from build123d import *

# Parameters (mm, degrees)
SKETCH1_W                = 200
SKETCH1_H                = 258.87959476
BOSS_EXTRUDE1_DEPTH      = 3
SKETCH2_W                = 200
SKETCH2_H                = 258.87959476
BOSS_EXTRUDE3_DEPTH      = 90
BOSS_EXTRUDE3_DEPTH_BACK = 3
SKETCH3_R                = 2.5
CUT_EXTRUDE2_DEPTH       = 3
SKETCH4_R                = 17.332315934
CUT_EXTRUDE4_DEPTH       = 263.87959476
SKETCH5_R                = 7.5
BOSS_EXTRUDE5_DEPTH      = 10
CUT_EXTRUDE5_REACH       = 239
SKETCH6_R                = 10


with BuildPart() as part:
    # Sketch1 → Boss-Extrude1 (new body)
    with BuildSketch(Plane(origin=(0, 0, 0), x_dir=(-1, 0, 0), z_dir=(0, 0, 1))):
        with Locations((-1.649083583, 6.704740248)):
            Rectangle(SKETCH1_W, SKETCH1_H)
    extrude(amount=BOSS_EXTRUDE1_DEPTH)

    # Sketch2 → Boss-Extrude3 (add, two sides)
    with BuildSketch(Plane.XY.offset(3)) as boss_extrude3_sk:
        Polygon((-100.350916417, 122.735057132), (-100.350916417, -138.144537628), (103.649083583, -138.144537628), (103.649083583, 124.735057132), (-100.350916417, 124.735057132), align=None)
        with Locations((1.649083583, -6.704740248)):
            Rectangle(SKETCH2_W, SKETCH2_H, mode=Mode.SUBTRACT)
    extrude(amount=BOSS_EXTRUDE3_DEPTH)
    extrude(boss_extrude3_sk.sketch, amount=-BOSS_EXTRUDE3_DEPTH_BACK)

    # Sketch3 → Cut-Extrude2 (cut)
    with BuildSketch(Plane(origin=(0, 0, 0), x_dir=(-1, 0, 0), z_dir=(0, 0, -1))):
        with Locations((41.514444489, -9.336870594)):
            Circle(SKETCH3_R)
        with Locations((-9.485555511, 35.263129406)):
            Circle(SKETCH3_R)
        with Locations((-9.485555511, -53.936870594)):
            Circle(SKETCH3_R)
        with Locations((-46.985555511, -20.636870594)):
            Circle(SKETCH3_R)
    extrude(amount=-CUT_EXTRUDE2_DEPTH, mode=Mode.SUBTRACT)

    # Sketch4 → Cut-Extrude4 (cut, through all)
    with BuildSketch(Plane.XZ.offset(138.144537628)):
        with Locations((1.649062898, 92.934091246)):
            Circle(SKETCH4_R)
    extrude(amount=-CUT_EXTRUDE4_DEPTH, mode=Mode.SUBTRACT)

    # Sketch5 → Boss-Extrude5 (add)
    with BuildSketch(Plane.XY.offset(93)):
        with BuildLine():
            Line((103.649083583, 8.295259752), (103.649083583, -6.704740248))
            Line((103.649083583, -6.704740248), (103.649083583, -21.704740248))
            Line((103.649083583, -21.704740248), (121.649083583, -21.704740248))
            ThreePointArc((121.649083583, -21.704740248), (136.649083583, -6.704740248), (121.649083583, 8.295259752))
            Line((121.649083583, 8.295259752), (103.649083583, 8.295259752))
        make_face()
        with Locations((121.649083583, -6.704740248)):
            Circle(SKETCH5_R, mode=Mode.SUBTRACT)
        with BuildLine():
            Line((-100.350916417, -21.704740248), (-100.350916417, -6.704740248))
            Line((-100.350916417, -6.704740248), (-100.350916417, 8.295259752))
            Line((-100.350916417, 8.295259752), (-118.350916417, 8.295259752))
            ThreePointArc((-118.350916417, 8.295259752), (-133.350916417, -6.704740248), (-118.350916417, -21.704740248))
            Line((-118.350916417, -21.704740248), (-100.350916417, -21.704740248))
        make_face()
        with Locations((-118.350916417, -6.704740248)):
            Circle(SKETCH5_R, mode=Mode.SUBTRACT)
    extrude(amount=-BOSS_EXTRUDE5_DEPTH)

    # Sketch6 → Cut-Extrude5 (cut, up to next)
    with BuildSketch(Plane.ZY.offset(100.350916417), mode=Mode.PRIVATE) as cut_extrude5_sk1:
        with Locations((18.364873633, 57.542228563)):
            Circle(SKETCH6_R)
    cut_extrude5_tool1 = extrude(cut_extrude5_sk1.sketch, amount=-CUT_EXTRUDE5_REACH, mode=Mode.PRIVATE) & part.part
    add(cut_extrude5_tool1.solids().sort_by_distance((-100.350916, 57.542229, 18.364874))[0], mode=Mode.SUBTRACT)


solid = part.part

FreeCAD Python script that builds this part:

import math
import FreeCAD as App
import Part
import Sketcher

V = App.Vector

doc = App.newDocument("Part")
params = doc.addObject("Spreadsheet::Sheet", "Params")
for row, (alias, value) in enumerate([
    ("sketch1_width", "200 mm"),
    ("pad1_length", "3 mm"),
    ("sketch2_width", "204 mm"),
    ("sketch2_width2", "200 mm"),
    ("pad2_length", "90 mm"),
    ("pad2_length2", "3 mm"),
    ("sketch3_diameter", "5 mm"),
    ("pocket1_length", "3 mm"),
    ("sketch5_diameter", "15 mm"),
    ("sketch5_radius", "15 mm"),
    ("sketch5_width", "18 mm"),
    ("pad3_length", "10 mm"),
    ("sketch6_diameter", "20 mm"),
], start=1):
    params.set(f"A{row}", alias)
    params.set(f"B{row}", "=" + value)
    params.setAlias(f"B{row}", alias)

body = doc.addObject("PartDesign::Body", "Body")

sketch1 = doc.addObject("Sketcher::SketchObject", "Sketch")
body.addObject(sketch1)
sketch1.AttachmentSupport = (doc.XY_Plane, [""])
sketch1.MapMode = "FlatFace"
sketch1.addGeometry(Part.LineSegment(V(102, -136, 0), V(102, 123, 0)), False)
sketch1.addGeometry(Part.LineSegment(V(102, 123, 0), V(-98, 123, 0)), False)
sketch1.addGeometry(Part.LineSegment(V(-98, 123, 0), V(-98, -136, 0)), False)
sketch1.addGeometry(Part.LineSegment(V(-98, -136, 0), V(102, -136, 0)), False)
sketch1.addConstraint(Sketcher.Constraint("Coincident", 0, 2, 1, 1))
sketch1.addConstraint(Sketcher.Constraint("Coincident", 1, 2, 2, 1))
sketch1.addConstraint(Sketcher.Constraint("Coincident", 2, 2, 3, 1))
sketch1.addConstraint(Sketcher.Constraint("Coincident", 3, 2, 0, 1))
sketch1.addConstraint(Sketcher.Constraint("Vertical", 0))
sketch1.addConstraint(Sketcher.Constraint("Horizontal", 1))
sketch1.addConstraint(Sketcher.Constraint("Vertical", 2))
sketch1.addConstraint(Sketcher.Constraint("Horizontal", 3))
sketch1.addConstraint(Sketcher.Constraint("DistanceX", 1, 2, 1, 1, 200.0))
sketch1.addConstraint(Sketcher.Constraint("DistanceY", 0, 1, 0, 2, 258.879595))
sketch1.addConstraint(Sketcher.Constraint("DistanceX", -1, 1, 0, 2, 101.649084))
sketch1.addConstraint(Sketcher.Constraint("DistanceY", -1, 1, 0, 2, 122.735057))
sketch1.setExpression("Constraints[8]", "Params.sketch1_width")
pad1 = doc.addObject("PartDesign::Pad", "Pad")
body.addObject(pad1)
pad1.Profile = sketch1
pad1.setExpression("Length", "Params.pad1_length")

sketch2 = doc.addObject("Sketcher::SketchObject", "Sketch001")
body.addObject(sketch2)
sketch2.AttachmentSupport = (doc.XY_Plane, [""])
sketch2.MapMode = "FlatFace"
sketch2.AttachmentOffset = App.Placement(V(0, 0, 3), App.Rotation())
sketch2.addGeometry(Part.LineSegment(V(-100, -138, 0), V(104, -138, 0)), False)
sketch2.addGeometry(Part.LineSegment(V(104, -138, 0), V(104, 125, 0)), False)
sketch2.addGeometry(Part.LineSegment(V(104, 125, 0), V(-100, 125, 0)), False)
sketch2.addGeometry(Part.LineSegment(V(-100, 125, 0), V(-100, -138, 0)), False)
sketch2.addGeometry(Part.LineSegment(V(102, -136, 0), V(-98, -136, 0)), False)
sketch2.addGeometry(Part.LineSegment(V(-98, -136, 0), V(-98, 123, 0)), False)
sketch2.addGeometry(Part.LineSegment(V(-98, 123, 0), V(102, 123, 0)), False)
sketch2.addGeometry(Part.LineSegment(V(102, 123, 0), V(102, -136, 0)), False)
sketch2.addConstraint(Sketcher.Constraint("Coincident", 0, 2, 1, 1))
sketch2.addConstraint(Sketcher.Constraint("Coincident", 1, 2, 2, 1))
sketch2.addConstraint(Sketcher.Constraint("Coincident", 2, 2, 3, 1))
sketch2.addConstraint(Sketcher.Constraint("Coincident", 3, 2, 0, 1))
sketch2.addConstraint(Sketcher.Constraint("Coincident", 4, 2, 5, 1))
sketch2.addConstraint(Sketcher.Constraint("Coincident", 5, 2, 6, 1))
sketch2.addConstraint(Sketcher.Constraint("Coincident", 6, 2, 7, 1))
sketch2.addConstraint(Sketcher.Constraint("Coincident", 7, 2, 4, 1))
sketch2.addConstraint(Sketcher.Constraint("Horizontal", 0))
sketch2.addConstraint(Sketcher.Constraint("Vertical", 1))
sketch2.addConstraint(Sketcher.Constraint("Horizontal", 2))
sketch2.addConstraint(Sketcher.Constraint("Vertical", 3))
sketch2.addConstraint(Sketcher.Constraint("Horizontal", 4))
sketch2.addConstraint(Sketcher.Constraint("Vertical", 5))
sketch2.addConstraint(Sketcher.Constraint("Horizontal", 6))
sketch2.addConstraint(Sketcher.Constraint("Vertical", 7))
sketch2.addConstraint(Sketcher.Constraint("DistanceX", 0, 1, 0, 2, 204.0))
sketch2.addConstraint(Sketcher.Constraint("DistanceX", 4, 2, 4, 1, 200.0))
sketch2.addConstraint(Sketcher.Constraint("DistanceX", 3, 2, 4, 2, 2.0))
sketch2.addConstraint(Sketcher.Constraint("DistanceY", 3, 2, 4, 2, 2.0))
sketch2.addConstraint(Sketcher.Constraint("DistanceY", 5, 2, 2, 2, 2.0))
sketch2.addConstraint(Sketcher.Constraint("DistanceY", 1, 1, 1, 2, 262.879595))
sketch2.addConstraint(Sketcher.Constraint("DistanceX", -1, 1, 0, 2, 103.649084))
sketch2.addConstraint(Sketcher.Constraint("DistanceY", 0, 2, -1, 1, 138.144538))
sketch2.setExpression("Constraints[16]", "Params.sketch2_width")
sketch2.setExpression("Constraints[17]", "Params.sketch2_width2")
pad2 = doc.addObject("PartDesign::Pad", "Pad001")
body.addObject(pad2)
pad2.Profile = sketch2
pad2.Type = "TwoLengths"
pad2.setExpression("Length", "Params.pad2_length")
pad2.setExpression("Length2", "Params.pad2_length2")

sketch3 = doc.addObject("Sketcher::SketchObject", "Sketch002")
body.addObject(sketch3)
sketch3.AttachmentSupport = (doc.XY_Plane, [""])
sketch3.MapMode = "FlatFace"
sketch3.addGeometry(Part.Circle(V(-41.5, -9.3, 0), V(0, 0, 1), 2.5), False)
sketch3.addGeometry(Part.Circle(V(9.5, 35.3, 0), V(0, 0, 1), 2.5), False)
sketch3.addGeometry(Part.Circle(V(9.5, -53.9, 0), V(0, 0, 1), 2.5), False)
sketch3.addGeometry(Part.Circle(V(47, -20.6, 0), V(0, 0, 1), 2.5), False)
sketch3.addConstraint(Sketcher.Constraint("Equal", 0, 1))
sketch3.addConstraint(Sketcher.Constraint("Equal", 1, 2))
sketch3.addConstraint(Sketcher.Constraint("Equal", 2, 3))
sketch3.addConstraint(Sketcher.Constraint("Vertical", 1, 3, 2, 3))
sketch3.addConstraint(Sketcher.Constraint("Diameter", 0, 5.0))
sketch3.addConstraint(Sketcher.Constraint("DistanceX", 0, 3, 1, 3, 51.0))
sketch3.addConstraint(Sketcher.Constraint("DistanceY", 0, 3, 1, 3, 44.6))
sketch3.addConstraint(Sketcher.Constraint("DistanceY", 2, 3, 0, 3, 44.6))
sketch3.addConstraint(Sketcher.Constraint("DistanceX", 2, 3, 3, 3, 37.5))
sketch3.addConstraint(Sketcher.Constraint("DistanceY", 2, 3, 3, 3, 33.3))
sketch3.addConstraint(Sketcher.Constraint("DistanceY", 0, 3, -1, 1, 9.336871))
sketch3.addConstraint(Sketcher.Constraint("DistanceX", 0, 3, -1, 1, 41.514444))
sketch3.setExpression("Constraints[4]", "Params.sketch3_diameter")
pocket1 = doc.addObject("PartDesign::Pocket", "Pocket")
body.addObject(pocket1)
pocket1.Profile = sketch3
pocket1.setExpression("Length", "Params.pocket1_length")
pocket1.Reversed = True

sketch4 = doc.addObject("Sketcher::SketchObject", "Sketch003")
body.addObject(sketch4)
sketch4.AttachmentSupport = (doc.XZ_Plane, [""])
sketch4.MapMode = "FlatFace"
sketch4.AttachmentOffset = App.Placement(V(0, 0, 138.144538), App.Rotation())
sketch4.addGeometry(Part.Circle(V(2, 93, 0), V(0, 0, 1), 17), False)
sketch4.addConstraint(Sketcher.Constraint("Diameter", 0, 34.664632))
sketch4.addConstraint(Sketcher.Constraint("DistanceY", -1, 1, 0, 3, 92.934091))
sketch4.addConstraint(Sketcher.Constraint("DistanceX", -1, 1, 0, 3, 1.649063))
pocket2 = doc.addObject("PartDesign::Pocket", "Pocket001")
body.addObject(pocket2)
pocket2.Profile = sketch4
pocket2.Type = "ThroughAll"

sketch5 = doc.addObject("Sketcher::SketchObject", "Sketch004")
body.addObject(sketch5)
sketch5.AttachmentSupport = (doc.XY_Plane, [""])
sketch5.MapMode = "FlatFace"
sketch5.AttachmentOffset = App.Placement(V(0, 0, 93), App.Rotation())
sketch5.addGeometry(Part.LineSegment(V(104, 8, 0), V(104, -22, 0)), False)
sketch5.addGeometry(Part.LineSegment(V(104, -22, 0), V(122, -22, 0)), False)
sketch5.addGeometry(Part.ArcOfCircle(Part.Circle(V(122, -7, 0), V(0, 0, 1), 15), math.radians(-90), math.radians(90)), False)
sketch5.addGeometry(Part.LineSegment(V(122, 8, 0), V(104, 8, 0)), False)
sketch5.addGeometry(Part.Circle(V(122, -7, 0), V(0, 0, 1), 8), False)
sketch5.addGeometry(Part.LineSegment(V(-100, -22, 0), V(-100, 8, 0)), False)
sketch5.addGeometry(Part.LineSegment(V(-100, 8, 0), V(-118, 8, 0)), False)
sketch5.addGeometry(Part.ArcOfCircle(Part.Circle(V(-118, -7, 0), V(0, 0, 1), 15), math.radians(90), math.radians(270)), False)
sketch5.addGeometry(Part.LineSegment(V(-118, -22, 0), V(-100, -22, 0)), False)
sketch5.addGeometry(Part.Circle(V(-118, -7, 0), V(0, 0, 1), 8), False)
sketch5.addConstraint(Sketcher.Constraint("Coincident", 0, 2, 1, 1))
sketch5.addConstraint(Sketcher.Constraint("Tangent", 1, 2, 2, 1))
sketch5.addConstraint(Sketcher.Constraint("Tangent", 2, 2, 3, 1))
sketch5.addConstraint(Sketcher.Constraint("Coincident", 3, 2, 0, 1))
sketch5.addConstraint(Sketcher.Constraint("Coincident", 5, 2, 6, 1))
sketch5.addConstraint(Sketcher.Constraint("Tangent", 6, 2, 7, 1))
sketch5.addConstraint(Sketcher.Constraint("Tangent", 7, 2, 8, 1))
sketch5.addConstraint(Sketcher.Constraint("Coincident", 8, 2, 5, 1))
sketch5.addConstraint(Sketcher.Constraint("Vertical", 0))
sketch5.addConstraint(Sketcher.Constraint("Horizontal", 1))
sketch5.addConstraint(Sketcher.Constraint("Horizontal", 3))
sketch5.addConstraint(Sketcher.Constraint("Vertical", 5))
sketch5.addConstraint(Sketcher.Constraint("Horizontal", 6))
sketch5.addConstraint(Sketcher.Constraint("Horizontal", 8))
sketch5.addConstraint(Sketcher.Constraint("Coincident", 4, 3, 2, 3))
sketch5.addConstraint(Sketcher.Constraint("Coincident", 9, 3, 7, 3))
sketch5.addConstraint(Sketcher.Constraint("Equal", 2, 7))
sketch5.addConstraint(Sketcher.Constraint("Equal", 4, 9))
sketch5.addConstraint(Sketcher.Constraint("Horizontal", 4, 3, 7, 3))
sketch5.addConstraint(Sketcher.Constraint("Equal", 3, 6))
sketch5.addConstraint(Sketcher.Constraint("Diameter", 4, 15.0))
sketch5.addConstraint(Sketcher.Constraint("Radius", 2, 15.0))
sketch5.addConstraint(Sketcher.Constraint("DistanceX", 1, 1, 1, 2, 18.0))
sketch5.addConstraint(Sketcher.Constraint("DistanceX", 7, 3, 2, 3, 240.0))
sketch5.addConstraint(Sketcher.Constraint("DistanceY", 2, 3, -1, 1, 6.70474))
sketch5.addConstraint(Sketcher.Constraint("DistanceX", -1, 1, 2, 3, 121.649084))
sketch5.setExpression("Constraints[20]", "Params.sketch5_diameter")
sketch5.setExpression("Constraints[21]", "Params.sketch5_radius")
sketch5.setExpression("Constraints[22]", "Params.sketch5_width")
pad3 = doc.addObject("PartDesign::Pad", "Pad002")
body.addObject(pad3)
pad3.Profile = sketch5
pad3.setExpression("Length", "Params.pad3_length")
pad3.Reversed = True

sketch6 = doc.addObject("Sketcher::SketchObject", "Sketch005")
body.addObject(sketch6)
sketch6.AttachmentSupport = (doc.YZ_Plane, [""])
sketch6.MapMode = "FlatFace"
sketch6.AttachmentOffset = App.Placement(V(0, 0, -100.350916), App.Rotation())
sketch6.addGeometry(Part.Circle(V(58, 18, 0), V(0, 0, 1), 10), False)
sketch6.addConstraint(Sketcher.Constraint("Diameter", 0, 20.0))
sketch6.addConstraint(Sketcher.Constraint("DistanceX", -1, 1, 0, 3, 57.542229))
sketch6.addConstraint(Sketcher.Constraint("DistanceY", -1, 1, 0, 3, 18.364874))
sketch6.setExpression("Constraints[0]", "Params.sketch6_diameter")
pocket3 = doc.addObject("PartDesign::Pocket", "Pocket002")
body.addObject(pocket3)
pocket3.Profile = sketch6
pocket3.Type = "UpToFirst"
pocket3.Reversed = True

doc.recompute()
